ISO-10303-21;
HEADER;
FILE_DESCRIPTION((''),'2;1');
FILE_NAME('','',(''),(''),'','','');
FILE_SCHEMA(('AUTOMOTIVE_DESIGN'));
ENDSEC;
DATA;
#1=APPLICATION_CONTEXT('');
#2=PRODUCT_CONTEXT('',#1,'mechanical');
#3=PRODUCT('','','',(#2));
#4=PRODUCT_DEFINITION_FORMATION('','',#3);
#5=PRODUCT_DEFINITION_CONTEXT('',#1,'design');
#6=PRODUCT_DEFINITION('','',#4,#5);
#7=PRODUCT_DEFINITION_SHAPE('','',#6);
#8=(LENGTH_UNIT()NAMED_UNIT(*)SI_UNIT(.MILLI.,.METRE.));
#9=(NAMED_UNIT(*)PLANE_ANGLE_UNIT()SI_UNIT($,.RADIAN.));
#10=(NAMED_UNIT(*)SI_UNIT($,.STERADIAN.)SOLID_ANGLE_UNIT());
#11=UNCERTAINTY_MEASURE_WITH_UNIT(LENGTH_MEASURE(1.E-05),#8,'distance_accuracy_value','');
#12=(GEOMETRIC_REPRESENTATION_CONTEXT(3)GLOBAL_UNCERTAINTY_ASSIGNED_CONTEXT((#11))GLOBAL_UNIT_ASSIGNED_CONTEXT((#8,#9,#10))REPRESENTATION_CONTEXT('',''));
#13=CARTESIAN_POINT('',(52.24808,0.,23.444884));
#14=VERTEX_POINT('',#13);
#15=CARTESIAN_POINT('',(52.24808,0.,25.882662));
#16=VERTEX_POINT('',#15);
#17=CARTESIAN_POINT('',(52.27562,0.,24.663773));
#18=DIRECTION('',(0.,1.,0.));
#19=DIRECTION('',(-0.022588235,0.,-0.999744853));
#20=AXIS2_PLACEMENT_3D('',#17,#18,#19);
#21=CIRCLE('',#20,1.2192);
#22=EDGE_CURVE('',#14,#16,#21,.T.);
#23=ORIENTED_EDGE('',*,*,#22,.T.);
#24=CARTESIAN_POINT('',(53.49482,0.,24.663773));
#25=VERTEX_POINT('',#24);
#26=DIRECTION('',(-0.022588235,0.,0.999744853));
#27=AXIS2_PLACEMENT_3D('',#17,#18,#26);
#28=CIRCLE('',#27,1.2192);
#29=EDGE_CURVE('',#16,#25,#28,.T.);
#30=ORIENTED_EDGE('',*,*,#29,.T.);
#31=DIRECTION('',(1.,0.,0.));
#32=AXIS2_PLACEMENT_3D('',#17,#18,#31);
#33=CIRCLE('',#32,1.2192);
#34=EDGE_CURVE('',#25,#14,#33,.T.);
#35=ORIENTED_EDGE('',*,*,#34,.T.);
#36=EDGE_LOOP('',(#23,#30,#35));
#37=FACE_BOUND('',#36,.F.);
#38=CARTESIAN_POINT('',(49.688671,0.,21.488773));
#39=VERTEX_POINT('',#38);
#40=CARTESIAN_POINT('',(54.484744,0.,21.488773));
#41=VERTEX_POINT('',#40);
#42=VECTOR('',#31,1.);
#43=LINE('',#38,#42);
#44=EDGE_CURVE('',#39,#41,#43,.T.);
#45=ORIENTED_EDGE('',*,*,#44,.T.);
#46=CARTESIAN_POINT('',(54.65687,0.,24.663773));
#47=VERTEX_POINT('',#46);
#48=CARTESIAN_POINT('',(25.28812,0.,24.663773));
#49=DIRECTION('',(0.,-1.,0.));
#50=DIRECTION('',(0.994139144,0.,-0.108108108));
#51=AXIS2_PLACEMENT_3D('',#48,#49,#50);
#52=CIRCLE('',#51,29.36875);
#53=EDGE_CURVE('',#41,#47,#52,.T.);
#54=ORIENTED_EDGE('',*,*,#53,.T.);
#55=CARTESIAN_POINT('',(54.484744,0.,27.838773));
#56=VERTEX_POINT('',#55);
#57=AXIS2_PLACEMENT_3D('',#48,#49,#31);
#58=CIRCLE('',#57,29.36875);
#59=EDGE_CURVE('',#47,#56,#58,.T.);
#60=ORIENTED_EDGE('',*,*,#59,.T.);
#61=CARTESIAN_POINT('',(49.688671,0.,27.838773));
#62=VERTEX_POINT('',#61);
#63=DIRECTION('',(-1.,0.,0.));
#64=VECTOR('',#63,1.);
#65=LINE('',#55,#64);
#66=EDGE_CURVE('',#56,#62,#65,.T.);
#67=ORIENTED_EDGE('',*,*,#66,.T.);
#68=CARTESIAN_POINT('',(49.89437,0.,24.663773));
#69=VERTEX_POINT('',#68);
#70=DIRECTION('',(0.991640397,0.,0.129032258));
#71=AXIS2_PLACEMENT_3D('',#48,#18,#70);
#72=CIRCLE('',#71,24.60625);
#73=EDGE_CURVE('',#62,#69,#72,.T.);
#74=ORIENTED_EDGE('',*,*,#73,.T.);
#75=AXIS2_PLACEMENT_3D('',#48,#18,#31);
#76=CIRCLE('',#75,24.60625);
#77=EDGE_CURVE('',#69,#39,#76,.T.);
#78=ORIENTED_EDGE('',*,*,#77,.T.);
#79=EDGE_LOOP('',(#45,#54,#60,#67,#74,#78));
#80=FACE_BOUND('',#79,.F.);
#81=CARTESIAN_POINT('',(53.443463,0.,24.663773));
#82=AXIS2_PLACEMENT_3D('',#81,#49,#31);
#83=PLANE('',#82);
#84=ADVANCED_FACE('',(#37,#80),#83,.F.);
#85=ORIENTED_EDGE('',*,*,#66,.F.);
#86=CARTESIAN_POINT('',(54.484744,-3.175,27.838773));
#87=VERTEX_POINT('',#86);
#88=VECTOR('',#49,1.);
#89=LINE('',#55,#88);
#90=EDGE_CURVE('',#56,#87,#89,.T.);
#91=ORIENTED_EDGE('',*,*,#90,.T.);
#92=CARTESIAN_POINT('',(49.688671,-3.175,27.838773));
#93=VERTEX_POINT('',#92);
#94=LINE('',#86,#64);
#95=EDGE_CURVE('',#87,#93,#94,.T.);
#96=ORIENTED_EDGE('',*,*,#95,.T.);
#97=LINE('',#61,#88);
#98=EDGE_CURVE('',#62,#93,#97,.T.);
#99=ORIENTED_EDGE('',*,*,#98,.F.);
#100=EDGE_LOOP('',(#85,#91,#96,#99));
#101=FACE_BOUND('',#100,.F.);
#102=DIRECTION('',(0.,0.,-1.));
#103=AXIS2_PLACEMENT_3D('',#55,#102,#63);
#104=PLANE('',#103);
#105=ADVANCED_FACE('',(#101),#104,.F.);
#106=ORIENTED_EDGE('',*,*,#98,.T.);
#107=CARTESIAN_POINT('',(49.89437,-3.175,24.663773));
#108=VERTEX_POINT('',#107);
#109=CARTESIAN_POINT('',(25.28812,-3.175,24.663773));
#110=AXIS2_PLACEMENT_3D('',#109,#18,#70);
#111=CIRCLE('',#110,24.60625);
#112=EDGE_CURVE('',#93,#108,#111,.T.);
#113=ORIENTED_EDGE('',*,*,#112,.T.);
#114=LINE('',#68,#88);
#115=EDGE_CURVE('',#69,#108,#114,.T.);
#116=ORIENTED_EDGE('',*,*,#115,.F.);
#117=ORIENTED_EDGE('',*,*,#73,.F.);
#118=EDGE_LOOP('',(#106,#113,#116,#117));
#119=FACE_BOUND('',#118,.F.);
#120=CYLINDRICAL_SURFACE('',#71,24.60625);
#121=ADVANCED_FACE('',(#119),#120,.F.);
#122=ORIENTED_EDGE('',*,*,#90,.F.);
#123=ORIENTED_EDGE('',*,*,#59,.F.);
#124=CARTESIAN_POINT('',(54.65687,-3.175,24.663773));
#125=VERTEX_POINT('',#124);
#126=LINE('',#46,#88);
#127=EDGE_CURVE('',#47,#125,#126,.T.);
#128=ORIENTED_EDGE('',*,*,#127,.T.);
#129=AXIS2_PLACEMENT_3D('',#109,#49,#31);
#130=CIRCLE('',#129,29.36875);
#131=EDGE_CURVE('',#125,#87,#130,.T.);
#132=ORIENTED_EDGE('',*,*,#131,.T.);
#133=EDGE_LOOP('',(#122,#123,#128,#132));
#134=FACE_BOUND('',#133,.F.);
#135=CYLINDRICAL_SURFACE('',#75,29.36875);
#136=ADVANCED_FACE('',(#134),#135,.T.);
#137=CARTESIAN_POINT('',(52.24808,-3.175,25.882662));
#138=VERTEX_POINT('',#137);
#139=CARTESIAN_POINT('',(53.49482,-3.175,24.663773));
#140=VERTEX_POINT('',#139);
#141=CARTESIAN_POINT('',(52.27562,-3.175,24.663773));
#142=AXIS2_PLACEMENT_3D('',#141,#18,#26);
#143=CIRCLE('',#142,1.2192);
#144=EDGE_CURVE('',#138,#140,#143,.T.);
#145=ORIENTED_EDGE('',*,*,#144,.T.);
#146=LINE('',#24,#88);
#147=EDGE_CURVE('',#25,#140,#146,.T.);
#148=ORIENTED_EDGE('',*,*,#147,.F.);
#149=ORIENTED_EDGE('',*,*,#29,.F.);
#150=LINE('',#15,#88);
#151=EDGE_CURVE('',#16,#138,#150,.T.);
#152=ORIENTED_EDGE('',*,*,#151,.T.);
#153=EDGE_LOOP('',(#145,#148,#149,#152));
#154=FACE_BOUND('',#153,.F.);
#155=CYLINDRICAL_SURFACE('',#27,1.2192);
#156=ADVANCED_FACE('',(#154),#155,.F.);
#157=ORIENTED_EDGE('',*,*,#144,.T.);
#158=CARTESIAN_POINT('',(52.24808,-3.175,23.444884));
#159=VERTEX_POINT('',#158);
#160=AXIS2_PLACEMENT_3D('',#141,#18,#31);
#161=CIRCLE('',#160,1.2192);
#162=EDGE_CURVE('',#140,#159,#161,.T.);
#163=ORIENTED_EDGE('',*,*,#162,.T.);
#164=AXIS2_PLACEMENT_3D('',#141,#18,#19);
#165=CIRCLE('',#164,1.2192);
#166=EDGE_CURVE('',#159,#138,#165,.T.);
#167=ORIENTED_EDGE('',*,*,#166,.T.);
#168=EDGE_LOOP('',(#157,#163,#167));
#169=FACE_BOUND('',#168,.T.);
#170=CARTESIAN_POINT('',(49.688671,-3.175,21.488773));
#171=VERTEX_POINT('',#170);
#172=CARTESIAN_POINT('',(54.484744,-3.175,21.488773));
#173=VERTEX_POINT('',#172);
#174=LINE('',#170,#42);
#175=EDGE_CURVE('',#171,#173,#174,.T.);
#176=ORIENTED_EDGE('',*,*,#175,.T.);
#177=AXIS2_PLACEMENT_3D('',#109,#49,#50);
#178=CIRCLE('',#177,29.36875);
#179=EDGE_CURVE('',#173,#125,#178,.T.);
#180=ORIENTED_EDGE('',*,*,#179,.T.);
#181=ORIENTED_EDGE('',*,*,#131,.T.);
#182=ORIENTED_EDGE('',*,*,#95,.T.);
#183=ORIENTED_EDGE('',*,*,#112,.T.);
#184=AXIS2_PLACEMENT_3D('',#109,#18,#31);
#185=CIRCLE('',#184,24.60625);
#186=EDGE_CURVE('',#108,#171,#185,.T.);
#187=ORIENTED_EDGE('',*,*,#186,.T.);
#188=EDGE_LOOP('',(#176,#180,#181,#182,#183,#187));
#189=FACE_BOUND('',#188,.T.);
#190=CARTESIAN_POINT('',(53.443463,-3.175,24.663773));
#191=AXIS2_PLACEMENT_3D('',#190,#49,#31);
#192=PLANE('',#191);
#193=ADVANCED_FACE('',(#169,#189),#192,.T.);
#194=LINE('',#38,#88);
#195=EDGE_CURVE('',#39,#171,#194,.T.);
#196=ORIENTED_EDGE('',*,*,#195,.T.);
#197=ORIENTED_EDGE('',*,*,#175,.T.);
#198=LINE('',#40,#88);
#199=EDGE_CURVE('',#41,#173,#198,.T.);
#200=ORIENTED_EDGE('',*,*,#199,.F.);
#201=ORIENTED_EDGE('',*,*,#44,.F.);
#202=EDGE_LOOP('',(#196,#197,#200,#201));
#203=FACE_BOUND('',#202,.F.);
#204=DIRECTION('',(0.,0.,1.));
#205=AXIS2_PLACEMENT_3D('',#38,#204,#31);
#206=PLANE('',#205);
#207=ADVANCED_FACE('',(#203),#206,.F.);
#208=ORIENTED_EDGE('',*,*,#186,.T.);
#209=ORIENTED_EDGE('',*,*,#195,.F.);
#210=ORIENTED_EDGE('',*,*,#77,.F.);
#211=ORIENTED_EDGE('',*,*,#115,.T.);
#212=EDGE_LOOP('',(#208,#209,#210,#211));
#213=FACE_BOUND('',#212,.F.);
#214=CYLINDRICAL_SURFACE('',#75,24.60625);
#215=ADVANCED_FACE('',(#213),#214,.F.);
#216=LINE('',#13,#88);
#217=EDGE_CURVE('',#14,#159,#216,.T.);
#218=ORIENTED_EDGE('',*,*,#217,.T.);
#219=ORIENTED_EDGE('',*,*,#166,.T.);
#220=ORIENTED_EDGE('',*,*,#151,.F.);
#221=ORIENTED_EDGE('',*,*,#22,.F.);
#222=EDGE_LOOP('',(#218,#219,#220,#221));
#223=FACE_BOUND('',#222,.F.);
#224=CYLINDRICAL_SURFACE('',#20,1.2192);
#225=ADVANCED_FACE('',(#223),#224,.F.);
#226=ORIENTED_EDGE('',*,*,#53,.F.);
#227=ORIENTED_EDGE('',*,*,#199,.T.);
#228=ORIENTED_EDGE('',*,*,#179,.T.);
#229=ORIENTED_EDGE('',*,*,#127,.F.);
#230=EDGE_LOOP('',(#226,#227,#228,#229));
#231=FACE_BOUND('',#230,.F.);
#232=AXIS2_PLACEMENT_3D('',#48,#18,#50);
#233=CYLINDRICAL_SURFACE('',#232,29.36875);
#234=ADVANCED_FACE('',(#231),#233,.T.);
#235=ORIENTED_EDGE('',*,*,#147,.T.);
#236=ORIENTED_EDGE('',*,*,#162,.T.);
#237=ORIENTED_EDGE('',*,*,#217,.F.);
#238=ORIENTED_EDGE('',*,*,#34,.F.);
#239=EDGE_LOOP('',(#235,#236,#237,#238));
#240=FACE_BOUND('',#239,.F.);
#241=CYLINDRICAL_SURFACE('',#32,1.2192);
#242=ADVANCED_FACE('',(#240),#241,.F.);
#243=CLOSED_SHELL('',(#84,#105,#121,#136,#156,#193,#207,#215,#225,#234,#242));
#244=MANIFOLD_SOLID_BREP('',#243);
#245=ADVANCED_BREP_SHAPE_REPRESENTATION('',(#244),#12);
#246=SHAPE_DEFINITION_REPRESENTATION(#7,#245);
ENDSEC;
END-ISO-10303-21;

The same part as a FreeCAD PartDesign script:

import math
import FreeCAD as App
import Part
import Sketcher

V = App.Vector
Q = App.Units.Quantity

doc = App.newDocument("Part")
body = doc.addObject("PartDesign::Body", "Body")

# Sketch on XZ plane
sketch1 = doc.addObject("Sketcher::SketchObject", "Sketch")
body.addObject(sketch1)
sketch1.AttachmentSupport = (doc.XZ_Plane, [""])
sketch1.MapMode = "FlatFace"
sketch1.addGeometry(Part.LineSegment(V(54.5, 27.8, 0), V(49.7, 27.8, 0)), False)
sketch1.addGeometry(Part.ArcOfCircle(Part.Circle(V(25.3, 24.7, 0), V(0, 0, 1), 24.6), math.radians(0), math.radians(7.41)), False)
sketch1.addGeometry(Part.ArcOfCircle(Part.Circle(V(25.3, 24.7, 0), V(0, 0, 1), 24.6), math.radians(-7.41), math.radians(0)), False)
sketch1.addGeometry(Part.LineSegment(V(49.7, 21.5, 0), V(54.5, 21.5, 0)), False)
sketch1.addGeometry(Part.ArcOfCircle(Part.Circle(V(25.3, 24.7, 0), V(0, 0, 1), 29.4), math.radians(-6.21), math.radians(0)), False)
sketch1.addGeometry(Part.ArcOfCircle(Part.Circle(V(25.3, 24.7, 0), V(0, 0, 1), 29.4), math.radians(0), math.radians(6.21)), False)
sketch1.addGeometry(Part.ArcOfCircle(Part.Circle(V(52.3, 24.7, 0), V(0, 0, 1), 1.2), math.radians(0), math.radians(91)), False)
sketch1.addGeometry(Part.ArcOfCircle(Part.Circle(V(52.3, 24.7, 0), V(0, 0, 1), 1.2), math.radians(-91), math.radians(0)), False)
sketch1.addGeometry(Part.ArcOfCircle(Part.Circle(V(52.3, 24.7, 0), V(0, 0, 1), 1.2), math.radians(91), math.radians(269)), False)
sketch1.addConstraint(Sketcher.Constraint("Coincident", 0, 2, 1, 2))
sketch1.addConstraint(Sketcher.Constraint("Tangent", 1, 1, 2, 2))
sketch1.addConstraint(Sketcher.Constraint("Coincident", 2, 1, 3, 1))
sketch1.addConstraint(Sketcher.Constraint("Coincident", 3, 2, 4, 1))
sketch1.addConstraint(Sketcher.Constraint("Tangent", 4, 2, 5, 1))
sketch1.addConstraint(Sketcher.Constraint("Coincident", 5, 2, 0, 1))
sketch1.addConstraint(Sketcher.Constraint("Tangent", 6, 1, 7, 2))
sketch1.addConstraint(Sketcher.Constraint("Tangent", 7, 1, 8, 2))
sketch1.addConstraint(Sketcher.Constraint("Tangent", 8, 1, 6, 2))
sketch1.addConstraint(Sketcher.Constraint("Horizontal", 0))
sketch1.addConstraint(Sketcher.Constraint("Horizontal", 3))
sketch1.addConstraint(Sketcher.Constraint("Coincident", 4, 3, 1, 3))
sketch1.addConstraint(Sketcher.Constraint("Equal", 1, 2))
sketch1.addConstraint(Sketcher.Constraint("Equal", 4, 5))
sketch1.addConstraint(Sketcher.Constraint("Horizontal", 5, 3, 6, 3))
sketch1.addConstraint(Sketcher.Constraint("Horizontal", 8, 3, 1, 1))
sketch1.addConstraint(Sketcher.Constraint("Horizontal", 1, 1, 4, 2))
sketch1.addConstraint(Sketcher.Constraint("Horizontal", 4, 2, 6, 1))
sketch1.addConstraint(Sketcher.Constraint("Vertical", 0, 2, 2, 1))
sketch1.addConstraint(Sketcher.Constraint("Vertical", 7, 1, 8, 1))
sketch1.addConstraint(Sketcher.Constraint("Radius", 1, Q("0.96875 in")))
sketch1.addConstraint(Sketcher.Constraint("Radius", 4, Q("1.15625 in")))
sketch1.addConstraint(Sketcher.Constraint("Radius", 6, Q("0.048 in")))
sketch1.addConstraint(Sketcher.Constraint("DistanceY", 2, 1, 0, 2, Q("0.25 in")))
sketch1.addConstraint(Sketcher.Constraint("DistanceX", 2, 3, 6, 3, Q("1.0625 in")))
sketch1.addConstraint(Sketcher.Constraint("DistanceX", -1, 1, 1, 3, Q("25.28812 mm")))
sketch1.addConstraint(Sketcher.Constraint("DistanceX", -1, 1, 7, 1, Q("52.24808 mm")))
sketch1.addConstraint(Sketcher.Constraint("DistanceY", -1, 1, 1, 3, Q("24.663773 mm")))
pad1 = doc.addObject("PartDesign::Pad", "Pad")
body.addObject(pad1)
pad1.Profile = sketch1
pad1.Length = Q("0.125 in")

doc.recompute()
